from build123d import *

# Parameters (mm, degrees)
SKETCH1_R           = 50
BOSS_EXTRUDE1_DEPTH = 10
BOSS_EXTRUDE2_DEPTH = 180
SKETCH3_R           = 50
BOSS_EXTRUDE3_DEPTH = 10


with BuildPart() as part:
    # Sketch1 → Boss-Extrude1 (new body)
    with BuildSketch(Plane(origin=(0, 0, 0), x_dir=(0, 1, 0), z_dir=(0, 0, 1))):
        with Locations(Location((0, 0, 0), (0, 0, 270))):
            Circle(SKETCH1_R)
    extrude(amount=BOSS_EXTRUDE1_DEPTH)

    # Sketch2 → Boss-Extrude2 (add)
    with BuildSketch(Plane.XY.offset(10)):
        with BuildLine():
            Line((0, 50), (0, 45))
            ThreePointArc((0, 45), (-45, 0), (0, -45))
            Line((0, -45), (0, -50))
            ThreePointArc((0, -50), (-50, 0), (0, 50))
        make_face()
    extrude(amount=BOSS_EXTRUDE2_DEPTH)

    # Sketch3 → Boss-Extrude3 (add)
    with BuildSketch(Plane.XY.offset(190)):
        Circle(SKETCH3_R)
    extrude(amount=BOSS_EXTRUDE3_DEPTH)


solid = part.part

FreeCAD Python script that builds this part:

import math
import FreeCAD as App
import Part
import Sketcher
Q = App.Units.Quantity

doc = App.newDocument("Part")
params = doc.addObject("Spreadsheet::Sheet", "Params")
for row, (alias, value) in enumerate([
    ("sketch1_diameter", "100 mm"),
    ("pad1_length", "10 mm"),
    ("sketch2_radius", "50 mm"),
    ("sketch2_radius2", "45 mm"),
    ("pad2_length", "180 mm"),
    ("sketch3_diameter", "100 mm"),
    ("pad3_length", "10 mm"),
], start=1):
    params.set(f"A{row}", alias)
    params.set(f"B{row}", "=" + value)
    params.setAlias(f"B{row}", alias)

body = doc.addObject("PartDesign::Body", "Body")

# Sketch on XY plane
sketch1 = body.newObject("Sketcher::SketchObject", "Sketch")
sketch1.AttachmentSupport = (doc.getObject("XY_Plane"), [""])
sketch1.MapMode = "FlatFace"
sketch1.addGeometry(Part.Circle(App.Vector(0, 0, 0), App.Vector(0, 0, 1), 50), False)
sketch1.addConstraint([
    Sketcher.Constraint("Coincident", 0, 3, -1, 1),
    Sketcher.Constraint("Diameter", 0, Q("100 mm")),
])
sketch1.setExpression("Constraints[1]", "Params.sketch1_diameter")
pad1 = body.newObject("PartDesign::Pad", "Pad")
pad1.Profile = sketch1
pad1.setExpression("Length", "Params.pad1_length")

# Sketch on XY plane
sketch2 = body.newObject("Sketcher::SketchObject", "Sketch001")
sketch2.AttachmentSupport = (doc.getObject("XY_Plane"), [""])
sketch2.MapMode = "FlatFace"
sketch2.AttachmentOffset = App.Placement(App.Vector(0, 0, 10), App.Rotation())
sketch2.addGeometry([
    Part.LineSegment(App.Vector(0, 45, 0), App.Vector(0, 50, 0)),
    Part.ArcOfCircle(Part.Circle(App.Vector(0, 0, 0), App.Vector(0, 0, 1), 50), math.radians(90), math.radians(270)),
    Part.LineSegment(App.Vector(0, -50, 0), App.Vector(0, -45, 0)),
    Part.ArcOfCircle(Part.Circle(App.Vector(0, 0, 0), App.Vector(0, 0, 1), 45), math.radians(90), math.radians(270)),
], False)
sketch2.addConstraint([
    Sketcher.Constraint("Coincident", 0, 2, 1, 1),
    Sketcher.Constraint("Coincident", 1, 2, 2, 1),
    Sketcher.Constraint("Coincident", 2, 2, 3, 2),
    Sketcher.Constraint("Coincident", 3, 1, 0, 1),
    Sketcher.Constraint("Vertical", 0),
    Sketcher.Constraint("Vertical", 2),
    Sketcher.Constraint("Coincident", 1, 3, -1, 1),
    Sketcher.Constraint("Coincident", 3, 3, -1, 1),
    Sketcher.Constraint("PointOnObject", 0, 2, -2),
    Sketcher.Constraint("PointOnObject", 1, 2, -2),
    Sketcher.Constraint("Radius", 1, Q("50 mm")),
    Sketcher.Constraint("Radius", 3, Q("45 mm")),
])
sketch2.setExpression("Constraints[10]", "Params.sketch2_radius")
sketch2.setExpression("Constraints[11]", "Params.sketch2_radius2")
pad2 = body.newObject("PartDesign::Pad", "Pad001")
pad2.Profile = sketch2
pad2.setExpression("Length", "Params.pad2_length")

# Sketch on XY plane
sketch3 = body.newObject("Sketcher::SketchObject", "Sketch002")
sketch3.AttachmentSupport = (doc.getObject("XY_Plane"), [""])
sketch3.MapMode = "FlatFace"
sketch3.AttachmentOffset = App.Placement(App.Vector(0, 0, 190), App.Rotation())
sketch3.addGeometry(Part.Circle(App.Vector(0, 0, 0), App.Vector(0, 0, 1), 50), False)
sketch3.addConstraint([
    Sketcher.Constraint("Coincident", 0, 3, -1, 1),
    Sketcher.Constraint("Diameter", 0, Q("100 mm")),
])
sketch3.setExpression("Constraints[1]", "Params.sketch3_diameter")
pad3 = body.newObject("PartDesign::Pad", "Pad002")
pad3.Profile = sketch3
pad3.setExpression("Length", "Params.pad3_length")

doc.recompute()
